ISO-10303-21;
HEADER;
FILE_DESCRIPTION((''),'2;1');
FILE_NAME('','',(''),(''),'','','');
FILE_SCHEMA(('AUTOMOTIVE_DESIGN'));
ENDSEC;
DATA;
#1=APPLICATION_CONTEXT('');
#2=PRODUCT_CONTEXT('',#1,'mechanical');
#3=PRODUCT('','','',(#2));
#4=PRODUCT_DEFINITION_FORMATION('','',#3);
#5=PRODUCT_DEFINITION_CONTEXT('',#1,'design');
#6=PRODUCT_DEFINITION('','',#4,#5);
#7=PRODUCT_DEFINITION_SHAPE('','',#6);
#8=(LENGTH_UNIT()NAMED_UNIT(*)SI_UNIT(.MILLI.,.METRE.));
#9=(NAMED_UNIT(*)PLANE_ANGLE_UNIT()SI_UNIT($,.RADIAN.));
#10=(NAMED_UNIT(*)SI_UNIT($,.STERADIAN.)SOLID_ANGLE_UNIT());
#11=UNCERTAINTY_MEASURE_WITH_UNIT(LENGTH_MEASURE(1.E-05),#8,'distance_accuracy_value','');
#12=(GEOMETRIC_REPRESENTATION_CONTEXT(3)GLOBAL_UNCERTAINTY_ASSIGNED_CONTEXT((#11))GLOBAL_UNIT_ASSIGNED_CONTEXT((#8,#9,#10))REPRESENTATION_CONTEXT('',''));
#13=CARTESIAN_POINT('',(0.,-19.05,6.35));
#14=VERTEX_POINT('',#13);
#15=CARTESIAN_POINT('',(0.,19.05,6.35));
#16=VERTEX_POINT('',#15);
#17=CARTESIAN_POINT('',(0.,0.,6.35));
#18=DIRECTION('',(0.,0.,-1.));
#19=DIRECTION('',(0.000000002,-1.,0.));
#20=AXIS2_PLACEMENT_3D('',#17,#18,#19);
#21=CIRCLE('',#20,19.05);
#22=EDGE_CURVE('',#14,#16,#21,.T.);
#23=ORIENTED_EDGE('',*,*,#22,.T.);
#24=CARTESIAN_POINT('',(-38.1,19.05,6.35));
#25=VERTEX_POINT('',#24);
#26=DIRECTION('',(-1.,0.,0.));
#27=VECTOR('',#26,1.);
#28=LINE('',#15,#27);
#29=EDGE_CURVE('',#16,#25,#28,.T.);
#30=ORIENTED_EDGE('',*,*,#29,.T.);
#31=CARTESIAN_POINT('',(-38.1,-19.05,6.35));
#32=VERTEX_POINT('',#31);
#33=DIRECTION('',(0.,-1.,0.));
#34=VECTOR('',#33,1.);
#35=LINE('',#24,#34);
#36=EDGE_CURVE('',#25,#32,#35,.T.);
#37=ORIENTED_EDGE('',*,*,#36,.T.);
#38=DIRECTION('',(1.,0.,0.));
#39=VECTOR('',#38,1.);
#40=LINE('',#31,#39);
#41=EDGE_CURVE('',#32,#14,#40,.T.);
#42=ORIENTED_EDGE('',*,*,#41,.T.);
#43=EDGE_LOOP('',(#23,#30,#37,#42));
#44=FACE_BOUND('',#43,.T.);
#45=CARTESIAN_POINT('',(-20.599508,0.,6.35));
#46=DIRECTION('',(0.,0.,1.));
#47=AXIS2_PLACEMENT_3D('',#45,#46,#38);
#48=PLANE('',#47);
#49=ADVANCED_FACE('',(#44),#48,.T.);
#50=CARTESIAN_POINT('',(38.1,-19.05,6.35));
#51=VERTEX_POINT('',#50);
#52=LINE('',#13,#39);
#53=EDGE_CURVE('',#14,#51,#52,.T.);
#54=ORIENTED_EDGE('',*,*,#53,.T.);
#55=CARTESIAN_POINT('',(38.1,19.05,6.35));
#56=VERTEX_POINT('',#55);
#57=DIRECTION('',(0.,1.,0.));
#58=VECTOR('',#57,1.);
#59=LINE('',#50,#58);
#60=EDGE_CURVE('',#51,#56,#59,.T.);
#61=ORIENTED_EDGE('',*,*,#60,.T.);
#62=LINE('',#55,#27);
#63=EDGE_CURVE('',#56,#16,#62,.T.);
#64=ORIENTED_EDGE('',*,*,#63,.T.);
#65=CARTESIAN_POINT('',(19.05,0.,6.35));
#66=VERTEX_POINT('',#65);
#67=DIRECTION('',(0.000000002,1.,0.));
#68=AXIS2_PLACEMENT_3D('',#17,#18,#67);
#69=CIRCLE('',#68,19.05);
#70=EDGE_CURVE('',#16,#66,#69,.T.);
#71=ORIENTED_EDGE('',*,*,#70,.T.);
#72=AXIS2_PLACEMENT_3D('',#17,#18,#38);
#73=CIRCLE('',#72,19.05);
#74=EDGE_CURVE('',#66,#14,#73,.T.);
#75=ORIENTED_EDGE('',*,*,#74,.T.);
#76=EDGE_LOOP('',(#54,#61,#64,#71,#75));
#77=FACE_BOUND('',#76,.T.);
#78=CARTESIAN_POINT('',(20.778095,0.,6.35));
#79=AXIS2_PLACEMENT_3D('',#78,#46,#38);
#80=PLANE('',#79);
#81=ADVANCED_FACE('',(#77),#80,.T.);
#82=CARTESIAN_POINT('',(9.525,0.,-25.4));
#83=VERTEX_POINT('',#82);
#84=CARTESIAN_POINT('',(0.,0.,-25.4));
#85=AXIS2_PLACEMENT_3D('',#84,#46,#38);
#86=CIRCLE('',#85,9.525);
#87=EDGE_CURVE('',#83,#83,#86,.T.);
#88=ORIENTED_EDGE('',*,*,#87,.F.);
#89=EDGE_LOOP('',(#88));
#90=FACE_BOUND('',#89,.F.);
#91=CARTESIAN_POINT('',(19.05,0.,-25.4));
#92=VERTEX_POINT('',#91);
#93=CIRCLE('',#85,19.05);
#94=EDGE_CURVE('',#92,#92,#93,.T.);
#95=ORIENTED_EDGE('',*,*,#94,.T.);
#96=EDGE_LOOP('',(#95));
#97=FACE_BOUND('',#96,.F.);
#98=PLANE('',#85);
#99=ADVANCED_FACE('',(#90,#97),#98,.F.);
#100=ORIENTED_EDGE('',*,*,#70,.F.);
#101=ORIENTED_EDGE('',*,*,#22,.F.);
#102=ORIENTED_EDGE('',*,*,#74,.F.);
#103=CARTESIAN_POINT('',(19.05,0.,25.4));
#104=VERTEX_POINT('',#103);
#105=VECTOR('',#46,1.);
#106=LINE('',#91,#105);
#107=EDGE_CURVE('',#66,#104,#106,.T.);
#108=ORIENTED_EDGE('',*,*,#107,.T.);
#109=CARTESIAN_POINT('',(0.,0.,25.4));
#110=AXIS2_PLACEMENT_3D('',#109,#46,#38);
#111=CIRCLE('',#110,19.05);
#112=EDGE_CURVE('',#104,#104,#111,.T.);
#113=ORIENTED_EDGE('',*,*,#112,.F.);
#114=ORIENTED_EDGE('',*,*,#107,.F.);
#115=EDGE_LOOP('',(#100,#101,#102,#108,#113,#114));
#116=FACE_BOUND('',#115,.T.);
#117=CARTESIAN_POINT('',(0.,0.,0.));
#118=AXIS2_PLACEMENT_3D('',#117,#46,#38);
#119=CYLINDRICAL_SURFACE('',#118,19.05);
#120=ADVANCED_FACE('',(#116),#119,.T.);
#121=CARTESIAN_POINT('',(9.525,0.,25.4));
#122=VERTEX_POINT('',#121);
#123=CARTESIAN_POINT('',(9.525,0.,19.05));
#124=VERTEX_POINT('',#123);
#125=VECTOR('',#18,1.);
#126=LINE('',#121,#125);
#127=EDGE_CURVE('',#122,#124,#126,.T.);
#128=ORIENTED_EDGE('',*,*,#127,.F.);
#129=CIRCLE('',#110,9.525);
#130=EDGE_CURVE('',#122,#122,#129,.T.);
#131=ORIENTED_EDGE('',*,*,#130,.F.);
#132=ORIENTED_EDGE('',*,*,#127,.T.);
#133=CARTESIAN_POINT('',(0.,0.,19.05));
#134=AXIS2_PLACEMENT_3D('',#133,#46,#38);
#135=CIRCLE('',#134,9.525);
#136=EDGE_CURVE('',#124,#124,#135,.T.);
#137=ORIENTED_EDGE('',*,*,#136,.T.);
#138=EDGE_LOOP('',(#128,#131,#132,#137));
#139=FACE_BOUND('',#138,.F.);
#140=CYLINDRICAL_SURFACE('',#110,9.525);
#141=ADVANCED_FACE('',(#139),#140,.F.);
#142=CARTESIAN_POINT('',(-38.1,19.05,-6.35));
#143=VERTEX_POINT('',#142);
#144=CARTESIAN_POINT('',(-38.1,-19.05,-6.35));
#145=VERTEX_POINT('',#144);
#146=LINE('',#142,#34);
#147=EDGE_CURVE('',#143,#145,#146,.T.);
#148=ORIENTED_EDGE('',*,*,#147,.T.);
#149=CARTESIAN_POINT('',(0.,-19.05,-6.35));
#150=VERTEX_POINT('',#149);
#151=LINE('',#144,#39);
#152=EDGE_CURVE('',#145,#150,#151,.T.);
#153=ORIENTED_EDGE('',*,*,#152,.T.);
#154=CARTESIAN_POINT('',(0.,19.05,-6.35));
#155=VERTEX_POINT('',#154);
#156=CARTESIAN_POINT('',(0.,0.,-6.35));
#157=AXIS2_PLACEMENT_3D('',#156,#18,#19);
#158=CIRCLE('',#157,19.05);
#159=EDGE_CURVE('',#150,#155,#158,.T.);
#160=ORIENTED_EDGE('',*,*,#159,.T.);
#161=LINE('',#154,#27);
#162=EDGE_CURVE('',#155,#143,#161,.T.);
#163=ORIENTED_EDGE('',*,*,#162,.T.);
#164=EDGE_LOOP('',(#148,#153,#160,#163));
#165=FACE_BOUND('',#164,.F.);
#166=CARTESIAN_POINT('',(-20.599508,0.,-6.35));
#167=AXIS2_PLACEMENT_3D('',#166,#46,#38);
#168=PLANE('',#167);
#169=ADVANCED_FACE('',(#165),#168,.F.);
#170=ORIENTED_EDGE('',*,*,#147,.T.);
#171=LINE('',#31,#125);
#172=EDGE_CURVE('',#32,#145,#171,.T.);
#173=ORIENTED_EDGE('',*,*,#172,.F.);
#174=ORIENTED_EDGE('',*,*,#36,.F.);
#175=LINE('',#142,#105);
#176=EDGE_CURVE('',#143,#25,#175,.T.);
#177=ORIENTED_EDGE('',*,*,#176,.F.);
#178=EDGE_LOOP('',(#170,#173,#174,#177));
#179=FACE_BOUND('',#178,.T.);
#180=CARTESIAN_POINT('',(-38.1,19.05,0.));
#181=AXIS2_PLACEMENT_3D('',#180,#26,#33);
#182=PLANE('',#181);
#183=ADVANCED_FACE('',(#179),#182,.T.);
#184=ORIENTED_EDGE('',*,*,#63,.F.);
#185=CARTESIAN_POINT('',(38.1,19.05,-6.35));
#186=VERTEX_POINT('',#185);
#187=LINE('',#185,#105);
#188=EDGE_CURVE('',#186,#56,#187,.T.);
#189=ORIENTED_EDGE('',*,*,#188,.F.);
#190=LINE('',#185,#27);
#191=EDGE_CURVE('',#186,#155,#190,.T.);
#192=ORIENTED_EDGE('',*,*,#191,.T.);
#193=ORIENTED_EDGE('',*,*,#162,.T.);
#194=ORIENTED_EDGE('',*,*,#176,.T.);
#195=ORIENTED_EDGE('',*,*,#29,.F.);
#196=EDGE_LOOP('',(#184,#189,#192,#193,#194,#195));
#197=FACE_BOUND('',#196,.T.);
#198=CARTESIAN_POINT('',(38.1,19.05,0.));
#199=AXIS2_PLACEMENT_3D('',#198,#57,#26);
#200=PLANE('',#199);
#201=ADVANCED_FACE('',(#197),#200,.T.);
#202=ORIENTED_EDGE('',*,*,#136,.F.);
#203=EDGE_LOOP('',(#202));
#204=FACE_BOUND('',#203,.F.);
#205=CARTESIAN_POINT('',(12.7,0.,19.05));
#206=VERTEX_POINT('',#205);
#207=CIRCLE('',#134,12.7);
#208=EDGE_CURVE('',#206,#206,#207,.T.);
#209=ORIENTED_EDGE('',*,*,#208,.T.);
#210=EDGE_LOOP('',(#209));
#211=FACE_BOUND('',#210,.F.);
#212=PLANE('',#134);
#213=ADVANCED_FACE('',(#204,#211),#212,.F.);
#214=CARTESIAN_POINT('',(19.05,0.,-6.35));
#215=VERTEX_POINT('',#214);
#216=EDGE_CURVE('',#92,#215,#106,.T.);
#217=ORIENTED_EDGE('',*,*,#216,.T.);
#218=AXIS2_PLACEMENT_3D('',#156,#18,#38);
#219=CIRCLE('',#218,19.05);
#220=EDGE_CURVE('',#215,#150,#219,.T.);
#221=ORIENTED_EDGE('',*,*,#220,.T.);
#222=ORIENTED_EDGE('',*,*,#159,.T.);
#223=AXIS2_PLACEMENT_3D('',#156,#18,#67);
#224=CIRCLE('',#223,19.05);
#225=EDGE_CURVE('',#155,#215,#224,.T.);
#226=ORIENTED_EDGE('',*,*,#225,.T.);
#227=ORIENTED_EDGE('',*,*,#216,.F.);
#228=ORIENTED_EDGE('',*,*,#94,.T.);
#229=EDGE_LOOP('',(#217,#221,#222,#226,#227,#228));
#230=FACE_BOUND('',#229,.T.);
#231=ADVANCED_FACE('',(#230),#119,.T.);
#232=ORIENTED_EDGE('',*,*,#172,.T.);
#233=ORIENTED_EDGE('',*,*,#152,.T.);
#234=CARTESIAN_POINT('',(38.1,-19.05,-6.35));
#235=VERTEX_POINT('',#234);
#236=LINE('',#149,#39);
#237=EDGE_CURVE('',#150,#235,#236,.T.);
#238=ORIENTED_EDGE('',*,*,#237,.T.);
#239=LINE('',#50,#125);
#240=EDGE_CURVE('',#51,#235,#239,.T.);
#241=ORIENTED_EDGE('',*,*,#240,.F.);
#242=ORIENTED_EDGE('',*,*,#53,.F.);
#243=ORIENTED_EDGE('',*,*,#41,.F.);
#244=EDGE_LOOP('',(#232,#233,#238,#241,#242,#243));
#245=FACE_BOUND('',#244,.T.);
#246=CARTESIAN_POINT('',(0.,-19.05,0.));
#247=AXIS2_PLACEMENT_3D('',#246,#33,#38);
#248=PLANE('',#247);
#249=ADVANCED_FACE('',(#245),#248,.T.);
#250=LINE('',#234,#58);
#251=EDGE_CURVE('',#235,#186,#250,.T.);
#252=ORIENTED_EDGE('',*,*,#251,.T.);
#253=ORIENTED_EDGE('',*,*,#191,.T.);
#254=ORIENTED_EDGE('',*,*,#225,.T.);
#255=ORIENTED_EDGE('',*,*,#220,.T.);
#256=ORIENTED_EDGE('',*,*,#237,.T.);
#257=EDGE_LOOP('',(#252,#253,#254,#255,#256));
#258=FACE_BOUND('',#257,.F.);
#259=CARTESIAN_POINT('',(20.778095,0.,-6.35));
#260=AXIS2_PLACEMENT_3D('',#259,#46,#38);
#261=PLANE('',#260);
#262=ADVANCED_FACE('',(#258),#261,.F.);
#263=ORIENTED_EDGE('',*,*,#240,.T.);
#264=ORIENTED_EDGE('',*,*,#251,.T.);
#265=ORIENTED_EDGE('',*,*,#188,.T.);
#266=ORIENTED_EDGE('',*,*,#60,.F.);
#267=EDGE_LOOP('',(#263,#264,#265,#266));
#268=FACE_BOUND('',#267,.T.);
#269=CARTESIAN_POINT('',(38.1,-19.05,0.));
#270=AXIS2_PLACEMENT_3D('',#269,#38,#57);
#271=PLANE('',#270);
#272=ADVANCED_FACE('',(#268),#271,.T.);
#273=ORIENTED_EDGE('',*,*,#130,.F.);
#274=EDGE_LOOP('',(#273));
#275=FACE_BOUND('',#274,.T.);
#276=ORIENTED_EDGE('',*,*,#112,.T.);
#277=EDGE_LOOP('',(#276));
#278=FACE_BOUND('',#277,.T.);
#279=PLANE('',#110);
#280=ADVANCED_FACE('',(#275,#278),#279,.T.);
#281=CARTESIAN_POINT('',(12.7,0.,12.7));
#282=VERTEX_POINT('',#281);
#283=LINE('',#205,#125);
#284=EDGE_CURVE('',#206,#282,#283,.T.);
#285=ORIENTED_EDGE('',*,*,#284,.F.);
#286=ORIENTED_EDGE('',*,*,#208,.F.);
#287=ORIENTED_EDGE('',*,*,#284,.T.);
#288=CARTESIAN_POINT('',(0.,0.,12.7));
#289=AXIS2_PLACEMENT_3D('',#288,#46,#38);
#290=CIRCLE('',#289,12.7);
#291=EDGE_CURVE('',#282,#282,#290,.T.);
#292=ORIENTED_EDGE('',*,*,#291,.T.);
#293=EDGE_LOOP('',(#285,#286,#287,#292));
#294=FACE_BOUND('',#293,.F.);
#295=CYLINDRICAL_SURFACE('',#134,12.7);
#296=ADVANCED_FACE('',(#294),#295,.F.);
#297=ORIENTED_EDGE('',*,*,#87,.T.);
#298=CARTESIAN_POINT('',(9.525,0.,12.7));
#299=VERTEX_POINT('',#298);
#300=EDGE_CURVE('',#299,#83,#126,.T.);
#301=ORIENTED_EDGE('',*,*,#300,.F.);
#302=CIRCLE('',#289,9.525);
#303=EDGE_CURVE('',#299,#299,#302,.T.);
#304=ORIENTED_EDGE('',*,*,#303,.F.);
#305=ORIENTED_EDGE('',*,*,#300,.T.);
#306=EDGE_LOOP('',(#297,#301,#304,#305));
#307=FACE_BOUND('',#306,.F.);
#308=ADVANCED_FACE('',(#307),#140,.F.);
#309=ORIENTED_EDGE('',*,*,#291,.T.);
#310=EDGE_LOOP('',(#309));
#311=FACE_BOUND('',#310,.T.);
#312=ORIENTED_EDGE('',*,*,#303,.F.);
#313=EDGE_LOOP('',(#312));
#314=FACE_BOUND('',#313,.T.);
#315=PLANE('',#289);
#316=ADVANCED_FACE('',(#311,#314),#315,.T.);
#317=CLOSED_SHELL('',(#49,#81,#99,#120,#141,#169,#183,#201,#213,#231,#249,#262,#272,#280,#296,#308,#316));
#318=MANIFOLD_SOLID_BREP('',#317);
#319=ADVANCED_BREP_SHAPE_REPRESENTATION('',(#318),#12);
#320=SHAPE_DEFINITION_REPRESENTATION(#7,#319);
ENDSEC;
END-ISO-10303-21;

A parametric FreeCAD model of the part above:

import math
import FreeCAD as App
import Part
import Sketcher

V = App.Vector
Q = App.Units.Quantity

doc = App.newDocument("Part")
body = doc.addObject("PartDesign::Body", "Body")

sketch1 = body.newObject("Sketcher::SketchObject", "Sketch")
sketch1.AttachmentSupport = (doc.getObject("XY_Plane"), [""])
sketch1.MapMode = "FlatFace"
sketch1.addGeometry([
    Part.ArcOfCircle(Part.Circle(V(0, 0, 0), V(0, 0, 1), 19), math.radians(90), math.radians(270)),
    Part.LineSegment(V(0, 19, 0), V(-38, 19, 0)),
    Part.LineSegment(V(-38, 19, 0), V(-38, -19, 0)),
    Part.LineSegment(V(-38, -19, 0), V(0, -19, 0)),
], False)
sketch1.addConstraint([
    Sketcher.Constraint("Tangent", 0, 1, 1, 1),
    Sketcher.Constraint("Coincident", 1, 2, 2, 1),
    Sketcher.Constraint("Coincident", 2, 2, 3, 1),
    Sketcher.Constraint("Tangent", 3, 2, 0, 2),
    Sketcher.Constraint("Horizontal", 1),
    Sketcher.Constraint("Vertical", 2),
    Sketcher.Constraint("Horizontal", 3),
    Sketcher.Constraint("Coincident", 0, 3, -1, 1),
    Sketcher.Constraint("Equal", 3, 2),
    Sketcher.Constraint("Radius", 0, Q("0.75 in")),
])
pad1 = body.newObject("PartDesign::Pad", "Pad")
pad1.Profile = sketch1
pad1.Length = Q("0.5 in")
pad1.Midplane = True
body2 = doc.addObject("PartDesign::Body", "Body001")

sketch2 = body2.newObject("Sketcher::SketchObject", "Sketch001")
sketch2.AttachmentSupport = (doc.getObject("XY_Plane001"), [""])
sketch2.MapMode = "FlatFace"
sketch2.addGeometry([
    Part.LineSegment(V(38, -19, 0), V(38, 19, 0)),
    Part.LineSegment(V(38, 19, 0), V(0, 19, 0)),
    Part.ArcOfCircle(Part.Circle(V(0, 0, 0), V(0, 0, 1), 19), math.radians(0), math.radians(90)),
    Part.ArcOfCircle(Part.Circle(V(0, 0, 0), V(0, 0, 1), 19), math.radians(-90), math.radians(0)),
    Part.LineSegment(V(0, -19, 0), V(38, -19, 0)),
], False)
sketch2.addConstraint([
    Sketcher.Constraint("Coincident", 0, 2, 1, 1),
    Sketcher.Constraint("Tangent", 1, 2, 2, 2),
    Sketcher.Constraint("Tangent", 2, 1, 3, 2),
    Sketcher.Constraint("Tangent", 3, 1, 4, 1),
    Sketcher.Constraint("Coincident", 4, 2, 0, 1),
    Sketcher.Constraint("Vertical", 0),
    Sketcher.Constraint("Horizontal", 1),
    Sketcher.Constraint("Horizontal", 4),
    Sketcher.Constraint("Coincident", 2, 3, -1, 1),
    Sketcher.Constraint("Equal", 2, 3),
    Sketcher.Constraint("PointOnObject", 2, 1, -1),
    Sketcher.Constraint("Equal", 4, 0),
    Sketcher.Constraint("Radius", 2, Q("0.75 in")),
])
pad2 = body2.newObject("PartDesign::Pad", "Pad001")
pad2.Profile = sketch2
pad2.Length = Q("0.5 in")
pad2.Midplane = True
body.AllowCompound = True
doc.recompute()

boolean = body.newObject("PartDesign::Boolean", "Boolean")
boolean.Type = "Fuse"
boolean.addObjects([body2])

sketch3 = body.newObject("Sketcher::SketchObject", "Sketch002")
sketch3.AttachmentSupport = (doc.getObject("XY_Plane"), [""])
sketch3.MapMode = "FlatFace"
sketch3.addGeometry(Part.Circle(V(0, 0, 0), V(0, 0, 1), 19), False)
sketch3.addConstraint([
    Sketcher.Constraint("Coincident", 0, 3, -1, 1),
    Sketcher.Constraint("Diameter", 0, Q("1.5 in")),
])
pad3 = body.newObject("PartDesign::Pad", "Pad002")
pad3.Profile = sketch3
pad3.Length = Q("2 in")
pad3.Midplane = True

sketch4 = body.newObject("Sketcher::SketchObject", "Sketch003")
sketch4.AttachmentSupport = (doc.getObject("XY_Plane"), [""])
sketch4.MapMode = "FlatFace"
sketch4.AttachmentOffset = App.Placement(V(0, 0, 1 * 25.4), App.Rotation())
sketch4.addGeometry(Part.Circle(V(0, 0, 0), V(0, 0, 1), 10), False)
sketch4.addConstraint([
    Sketcher.Constraint("Coincident", 0, 3, -1, 1),
    Sketcher.Constraint("Diameter", 0, Q("0.75 in")),
])
pocket1 = body.newObject("PartDesign::Pocket", "Pocket")
pocket1.Profile = sketch4
pocket1.Type = "ThroughAll"

sketch5 = body.newObject("Sketcher::SketchObject", "Sketch004")
sketch5.AttachmentSupport = (doc.getObject("XY_Plane"), [""])
sketch5.MapMode = "FlatFace"
sketch5.AttachmentOffset = App.Placement(V(0, 0, 0.75 * 25.4), App.Rotation())
sketch5.addGeometry([
    Part.Circle(V(0, 0, 0), V(0, 0, 1), 13),
    Part.Circle(V(0, 0, 0), V(0, 0, 1), 10),
], False)
sketch5.addConstraint([
    Sketcher.Constraint("Coincident", 0, 3, -1, 1),
    Sketcher.Constraint("Coincident", 1, 3, -1, 1),
    Sketcher.Constraint("Diameter", 0, Q("1 in")),
    Sketcher.Constraint("Diameter", 1, Q("0.75 in")),
])
pocket2 = body.newObject("PartDesign::Pocket", "Pocket001")
pocket2.Profile = sketch5
pocket2.Length = Q("0.25 in")

doc.recompute()
